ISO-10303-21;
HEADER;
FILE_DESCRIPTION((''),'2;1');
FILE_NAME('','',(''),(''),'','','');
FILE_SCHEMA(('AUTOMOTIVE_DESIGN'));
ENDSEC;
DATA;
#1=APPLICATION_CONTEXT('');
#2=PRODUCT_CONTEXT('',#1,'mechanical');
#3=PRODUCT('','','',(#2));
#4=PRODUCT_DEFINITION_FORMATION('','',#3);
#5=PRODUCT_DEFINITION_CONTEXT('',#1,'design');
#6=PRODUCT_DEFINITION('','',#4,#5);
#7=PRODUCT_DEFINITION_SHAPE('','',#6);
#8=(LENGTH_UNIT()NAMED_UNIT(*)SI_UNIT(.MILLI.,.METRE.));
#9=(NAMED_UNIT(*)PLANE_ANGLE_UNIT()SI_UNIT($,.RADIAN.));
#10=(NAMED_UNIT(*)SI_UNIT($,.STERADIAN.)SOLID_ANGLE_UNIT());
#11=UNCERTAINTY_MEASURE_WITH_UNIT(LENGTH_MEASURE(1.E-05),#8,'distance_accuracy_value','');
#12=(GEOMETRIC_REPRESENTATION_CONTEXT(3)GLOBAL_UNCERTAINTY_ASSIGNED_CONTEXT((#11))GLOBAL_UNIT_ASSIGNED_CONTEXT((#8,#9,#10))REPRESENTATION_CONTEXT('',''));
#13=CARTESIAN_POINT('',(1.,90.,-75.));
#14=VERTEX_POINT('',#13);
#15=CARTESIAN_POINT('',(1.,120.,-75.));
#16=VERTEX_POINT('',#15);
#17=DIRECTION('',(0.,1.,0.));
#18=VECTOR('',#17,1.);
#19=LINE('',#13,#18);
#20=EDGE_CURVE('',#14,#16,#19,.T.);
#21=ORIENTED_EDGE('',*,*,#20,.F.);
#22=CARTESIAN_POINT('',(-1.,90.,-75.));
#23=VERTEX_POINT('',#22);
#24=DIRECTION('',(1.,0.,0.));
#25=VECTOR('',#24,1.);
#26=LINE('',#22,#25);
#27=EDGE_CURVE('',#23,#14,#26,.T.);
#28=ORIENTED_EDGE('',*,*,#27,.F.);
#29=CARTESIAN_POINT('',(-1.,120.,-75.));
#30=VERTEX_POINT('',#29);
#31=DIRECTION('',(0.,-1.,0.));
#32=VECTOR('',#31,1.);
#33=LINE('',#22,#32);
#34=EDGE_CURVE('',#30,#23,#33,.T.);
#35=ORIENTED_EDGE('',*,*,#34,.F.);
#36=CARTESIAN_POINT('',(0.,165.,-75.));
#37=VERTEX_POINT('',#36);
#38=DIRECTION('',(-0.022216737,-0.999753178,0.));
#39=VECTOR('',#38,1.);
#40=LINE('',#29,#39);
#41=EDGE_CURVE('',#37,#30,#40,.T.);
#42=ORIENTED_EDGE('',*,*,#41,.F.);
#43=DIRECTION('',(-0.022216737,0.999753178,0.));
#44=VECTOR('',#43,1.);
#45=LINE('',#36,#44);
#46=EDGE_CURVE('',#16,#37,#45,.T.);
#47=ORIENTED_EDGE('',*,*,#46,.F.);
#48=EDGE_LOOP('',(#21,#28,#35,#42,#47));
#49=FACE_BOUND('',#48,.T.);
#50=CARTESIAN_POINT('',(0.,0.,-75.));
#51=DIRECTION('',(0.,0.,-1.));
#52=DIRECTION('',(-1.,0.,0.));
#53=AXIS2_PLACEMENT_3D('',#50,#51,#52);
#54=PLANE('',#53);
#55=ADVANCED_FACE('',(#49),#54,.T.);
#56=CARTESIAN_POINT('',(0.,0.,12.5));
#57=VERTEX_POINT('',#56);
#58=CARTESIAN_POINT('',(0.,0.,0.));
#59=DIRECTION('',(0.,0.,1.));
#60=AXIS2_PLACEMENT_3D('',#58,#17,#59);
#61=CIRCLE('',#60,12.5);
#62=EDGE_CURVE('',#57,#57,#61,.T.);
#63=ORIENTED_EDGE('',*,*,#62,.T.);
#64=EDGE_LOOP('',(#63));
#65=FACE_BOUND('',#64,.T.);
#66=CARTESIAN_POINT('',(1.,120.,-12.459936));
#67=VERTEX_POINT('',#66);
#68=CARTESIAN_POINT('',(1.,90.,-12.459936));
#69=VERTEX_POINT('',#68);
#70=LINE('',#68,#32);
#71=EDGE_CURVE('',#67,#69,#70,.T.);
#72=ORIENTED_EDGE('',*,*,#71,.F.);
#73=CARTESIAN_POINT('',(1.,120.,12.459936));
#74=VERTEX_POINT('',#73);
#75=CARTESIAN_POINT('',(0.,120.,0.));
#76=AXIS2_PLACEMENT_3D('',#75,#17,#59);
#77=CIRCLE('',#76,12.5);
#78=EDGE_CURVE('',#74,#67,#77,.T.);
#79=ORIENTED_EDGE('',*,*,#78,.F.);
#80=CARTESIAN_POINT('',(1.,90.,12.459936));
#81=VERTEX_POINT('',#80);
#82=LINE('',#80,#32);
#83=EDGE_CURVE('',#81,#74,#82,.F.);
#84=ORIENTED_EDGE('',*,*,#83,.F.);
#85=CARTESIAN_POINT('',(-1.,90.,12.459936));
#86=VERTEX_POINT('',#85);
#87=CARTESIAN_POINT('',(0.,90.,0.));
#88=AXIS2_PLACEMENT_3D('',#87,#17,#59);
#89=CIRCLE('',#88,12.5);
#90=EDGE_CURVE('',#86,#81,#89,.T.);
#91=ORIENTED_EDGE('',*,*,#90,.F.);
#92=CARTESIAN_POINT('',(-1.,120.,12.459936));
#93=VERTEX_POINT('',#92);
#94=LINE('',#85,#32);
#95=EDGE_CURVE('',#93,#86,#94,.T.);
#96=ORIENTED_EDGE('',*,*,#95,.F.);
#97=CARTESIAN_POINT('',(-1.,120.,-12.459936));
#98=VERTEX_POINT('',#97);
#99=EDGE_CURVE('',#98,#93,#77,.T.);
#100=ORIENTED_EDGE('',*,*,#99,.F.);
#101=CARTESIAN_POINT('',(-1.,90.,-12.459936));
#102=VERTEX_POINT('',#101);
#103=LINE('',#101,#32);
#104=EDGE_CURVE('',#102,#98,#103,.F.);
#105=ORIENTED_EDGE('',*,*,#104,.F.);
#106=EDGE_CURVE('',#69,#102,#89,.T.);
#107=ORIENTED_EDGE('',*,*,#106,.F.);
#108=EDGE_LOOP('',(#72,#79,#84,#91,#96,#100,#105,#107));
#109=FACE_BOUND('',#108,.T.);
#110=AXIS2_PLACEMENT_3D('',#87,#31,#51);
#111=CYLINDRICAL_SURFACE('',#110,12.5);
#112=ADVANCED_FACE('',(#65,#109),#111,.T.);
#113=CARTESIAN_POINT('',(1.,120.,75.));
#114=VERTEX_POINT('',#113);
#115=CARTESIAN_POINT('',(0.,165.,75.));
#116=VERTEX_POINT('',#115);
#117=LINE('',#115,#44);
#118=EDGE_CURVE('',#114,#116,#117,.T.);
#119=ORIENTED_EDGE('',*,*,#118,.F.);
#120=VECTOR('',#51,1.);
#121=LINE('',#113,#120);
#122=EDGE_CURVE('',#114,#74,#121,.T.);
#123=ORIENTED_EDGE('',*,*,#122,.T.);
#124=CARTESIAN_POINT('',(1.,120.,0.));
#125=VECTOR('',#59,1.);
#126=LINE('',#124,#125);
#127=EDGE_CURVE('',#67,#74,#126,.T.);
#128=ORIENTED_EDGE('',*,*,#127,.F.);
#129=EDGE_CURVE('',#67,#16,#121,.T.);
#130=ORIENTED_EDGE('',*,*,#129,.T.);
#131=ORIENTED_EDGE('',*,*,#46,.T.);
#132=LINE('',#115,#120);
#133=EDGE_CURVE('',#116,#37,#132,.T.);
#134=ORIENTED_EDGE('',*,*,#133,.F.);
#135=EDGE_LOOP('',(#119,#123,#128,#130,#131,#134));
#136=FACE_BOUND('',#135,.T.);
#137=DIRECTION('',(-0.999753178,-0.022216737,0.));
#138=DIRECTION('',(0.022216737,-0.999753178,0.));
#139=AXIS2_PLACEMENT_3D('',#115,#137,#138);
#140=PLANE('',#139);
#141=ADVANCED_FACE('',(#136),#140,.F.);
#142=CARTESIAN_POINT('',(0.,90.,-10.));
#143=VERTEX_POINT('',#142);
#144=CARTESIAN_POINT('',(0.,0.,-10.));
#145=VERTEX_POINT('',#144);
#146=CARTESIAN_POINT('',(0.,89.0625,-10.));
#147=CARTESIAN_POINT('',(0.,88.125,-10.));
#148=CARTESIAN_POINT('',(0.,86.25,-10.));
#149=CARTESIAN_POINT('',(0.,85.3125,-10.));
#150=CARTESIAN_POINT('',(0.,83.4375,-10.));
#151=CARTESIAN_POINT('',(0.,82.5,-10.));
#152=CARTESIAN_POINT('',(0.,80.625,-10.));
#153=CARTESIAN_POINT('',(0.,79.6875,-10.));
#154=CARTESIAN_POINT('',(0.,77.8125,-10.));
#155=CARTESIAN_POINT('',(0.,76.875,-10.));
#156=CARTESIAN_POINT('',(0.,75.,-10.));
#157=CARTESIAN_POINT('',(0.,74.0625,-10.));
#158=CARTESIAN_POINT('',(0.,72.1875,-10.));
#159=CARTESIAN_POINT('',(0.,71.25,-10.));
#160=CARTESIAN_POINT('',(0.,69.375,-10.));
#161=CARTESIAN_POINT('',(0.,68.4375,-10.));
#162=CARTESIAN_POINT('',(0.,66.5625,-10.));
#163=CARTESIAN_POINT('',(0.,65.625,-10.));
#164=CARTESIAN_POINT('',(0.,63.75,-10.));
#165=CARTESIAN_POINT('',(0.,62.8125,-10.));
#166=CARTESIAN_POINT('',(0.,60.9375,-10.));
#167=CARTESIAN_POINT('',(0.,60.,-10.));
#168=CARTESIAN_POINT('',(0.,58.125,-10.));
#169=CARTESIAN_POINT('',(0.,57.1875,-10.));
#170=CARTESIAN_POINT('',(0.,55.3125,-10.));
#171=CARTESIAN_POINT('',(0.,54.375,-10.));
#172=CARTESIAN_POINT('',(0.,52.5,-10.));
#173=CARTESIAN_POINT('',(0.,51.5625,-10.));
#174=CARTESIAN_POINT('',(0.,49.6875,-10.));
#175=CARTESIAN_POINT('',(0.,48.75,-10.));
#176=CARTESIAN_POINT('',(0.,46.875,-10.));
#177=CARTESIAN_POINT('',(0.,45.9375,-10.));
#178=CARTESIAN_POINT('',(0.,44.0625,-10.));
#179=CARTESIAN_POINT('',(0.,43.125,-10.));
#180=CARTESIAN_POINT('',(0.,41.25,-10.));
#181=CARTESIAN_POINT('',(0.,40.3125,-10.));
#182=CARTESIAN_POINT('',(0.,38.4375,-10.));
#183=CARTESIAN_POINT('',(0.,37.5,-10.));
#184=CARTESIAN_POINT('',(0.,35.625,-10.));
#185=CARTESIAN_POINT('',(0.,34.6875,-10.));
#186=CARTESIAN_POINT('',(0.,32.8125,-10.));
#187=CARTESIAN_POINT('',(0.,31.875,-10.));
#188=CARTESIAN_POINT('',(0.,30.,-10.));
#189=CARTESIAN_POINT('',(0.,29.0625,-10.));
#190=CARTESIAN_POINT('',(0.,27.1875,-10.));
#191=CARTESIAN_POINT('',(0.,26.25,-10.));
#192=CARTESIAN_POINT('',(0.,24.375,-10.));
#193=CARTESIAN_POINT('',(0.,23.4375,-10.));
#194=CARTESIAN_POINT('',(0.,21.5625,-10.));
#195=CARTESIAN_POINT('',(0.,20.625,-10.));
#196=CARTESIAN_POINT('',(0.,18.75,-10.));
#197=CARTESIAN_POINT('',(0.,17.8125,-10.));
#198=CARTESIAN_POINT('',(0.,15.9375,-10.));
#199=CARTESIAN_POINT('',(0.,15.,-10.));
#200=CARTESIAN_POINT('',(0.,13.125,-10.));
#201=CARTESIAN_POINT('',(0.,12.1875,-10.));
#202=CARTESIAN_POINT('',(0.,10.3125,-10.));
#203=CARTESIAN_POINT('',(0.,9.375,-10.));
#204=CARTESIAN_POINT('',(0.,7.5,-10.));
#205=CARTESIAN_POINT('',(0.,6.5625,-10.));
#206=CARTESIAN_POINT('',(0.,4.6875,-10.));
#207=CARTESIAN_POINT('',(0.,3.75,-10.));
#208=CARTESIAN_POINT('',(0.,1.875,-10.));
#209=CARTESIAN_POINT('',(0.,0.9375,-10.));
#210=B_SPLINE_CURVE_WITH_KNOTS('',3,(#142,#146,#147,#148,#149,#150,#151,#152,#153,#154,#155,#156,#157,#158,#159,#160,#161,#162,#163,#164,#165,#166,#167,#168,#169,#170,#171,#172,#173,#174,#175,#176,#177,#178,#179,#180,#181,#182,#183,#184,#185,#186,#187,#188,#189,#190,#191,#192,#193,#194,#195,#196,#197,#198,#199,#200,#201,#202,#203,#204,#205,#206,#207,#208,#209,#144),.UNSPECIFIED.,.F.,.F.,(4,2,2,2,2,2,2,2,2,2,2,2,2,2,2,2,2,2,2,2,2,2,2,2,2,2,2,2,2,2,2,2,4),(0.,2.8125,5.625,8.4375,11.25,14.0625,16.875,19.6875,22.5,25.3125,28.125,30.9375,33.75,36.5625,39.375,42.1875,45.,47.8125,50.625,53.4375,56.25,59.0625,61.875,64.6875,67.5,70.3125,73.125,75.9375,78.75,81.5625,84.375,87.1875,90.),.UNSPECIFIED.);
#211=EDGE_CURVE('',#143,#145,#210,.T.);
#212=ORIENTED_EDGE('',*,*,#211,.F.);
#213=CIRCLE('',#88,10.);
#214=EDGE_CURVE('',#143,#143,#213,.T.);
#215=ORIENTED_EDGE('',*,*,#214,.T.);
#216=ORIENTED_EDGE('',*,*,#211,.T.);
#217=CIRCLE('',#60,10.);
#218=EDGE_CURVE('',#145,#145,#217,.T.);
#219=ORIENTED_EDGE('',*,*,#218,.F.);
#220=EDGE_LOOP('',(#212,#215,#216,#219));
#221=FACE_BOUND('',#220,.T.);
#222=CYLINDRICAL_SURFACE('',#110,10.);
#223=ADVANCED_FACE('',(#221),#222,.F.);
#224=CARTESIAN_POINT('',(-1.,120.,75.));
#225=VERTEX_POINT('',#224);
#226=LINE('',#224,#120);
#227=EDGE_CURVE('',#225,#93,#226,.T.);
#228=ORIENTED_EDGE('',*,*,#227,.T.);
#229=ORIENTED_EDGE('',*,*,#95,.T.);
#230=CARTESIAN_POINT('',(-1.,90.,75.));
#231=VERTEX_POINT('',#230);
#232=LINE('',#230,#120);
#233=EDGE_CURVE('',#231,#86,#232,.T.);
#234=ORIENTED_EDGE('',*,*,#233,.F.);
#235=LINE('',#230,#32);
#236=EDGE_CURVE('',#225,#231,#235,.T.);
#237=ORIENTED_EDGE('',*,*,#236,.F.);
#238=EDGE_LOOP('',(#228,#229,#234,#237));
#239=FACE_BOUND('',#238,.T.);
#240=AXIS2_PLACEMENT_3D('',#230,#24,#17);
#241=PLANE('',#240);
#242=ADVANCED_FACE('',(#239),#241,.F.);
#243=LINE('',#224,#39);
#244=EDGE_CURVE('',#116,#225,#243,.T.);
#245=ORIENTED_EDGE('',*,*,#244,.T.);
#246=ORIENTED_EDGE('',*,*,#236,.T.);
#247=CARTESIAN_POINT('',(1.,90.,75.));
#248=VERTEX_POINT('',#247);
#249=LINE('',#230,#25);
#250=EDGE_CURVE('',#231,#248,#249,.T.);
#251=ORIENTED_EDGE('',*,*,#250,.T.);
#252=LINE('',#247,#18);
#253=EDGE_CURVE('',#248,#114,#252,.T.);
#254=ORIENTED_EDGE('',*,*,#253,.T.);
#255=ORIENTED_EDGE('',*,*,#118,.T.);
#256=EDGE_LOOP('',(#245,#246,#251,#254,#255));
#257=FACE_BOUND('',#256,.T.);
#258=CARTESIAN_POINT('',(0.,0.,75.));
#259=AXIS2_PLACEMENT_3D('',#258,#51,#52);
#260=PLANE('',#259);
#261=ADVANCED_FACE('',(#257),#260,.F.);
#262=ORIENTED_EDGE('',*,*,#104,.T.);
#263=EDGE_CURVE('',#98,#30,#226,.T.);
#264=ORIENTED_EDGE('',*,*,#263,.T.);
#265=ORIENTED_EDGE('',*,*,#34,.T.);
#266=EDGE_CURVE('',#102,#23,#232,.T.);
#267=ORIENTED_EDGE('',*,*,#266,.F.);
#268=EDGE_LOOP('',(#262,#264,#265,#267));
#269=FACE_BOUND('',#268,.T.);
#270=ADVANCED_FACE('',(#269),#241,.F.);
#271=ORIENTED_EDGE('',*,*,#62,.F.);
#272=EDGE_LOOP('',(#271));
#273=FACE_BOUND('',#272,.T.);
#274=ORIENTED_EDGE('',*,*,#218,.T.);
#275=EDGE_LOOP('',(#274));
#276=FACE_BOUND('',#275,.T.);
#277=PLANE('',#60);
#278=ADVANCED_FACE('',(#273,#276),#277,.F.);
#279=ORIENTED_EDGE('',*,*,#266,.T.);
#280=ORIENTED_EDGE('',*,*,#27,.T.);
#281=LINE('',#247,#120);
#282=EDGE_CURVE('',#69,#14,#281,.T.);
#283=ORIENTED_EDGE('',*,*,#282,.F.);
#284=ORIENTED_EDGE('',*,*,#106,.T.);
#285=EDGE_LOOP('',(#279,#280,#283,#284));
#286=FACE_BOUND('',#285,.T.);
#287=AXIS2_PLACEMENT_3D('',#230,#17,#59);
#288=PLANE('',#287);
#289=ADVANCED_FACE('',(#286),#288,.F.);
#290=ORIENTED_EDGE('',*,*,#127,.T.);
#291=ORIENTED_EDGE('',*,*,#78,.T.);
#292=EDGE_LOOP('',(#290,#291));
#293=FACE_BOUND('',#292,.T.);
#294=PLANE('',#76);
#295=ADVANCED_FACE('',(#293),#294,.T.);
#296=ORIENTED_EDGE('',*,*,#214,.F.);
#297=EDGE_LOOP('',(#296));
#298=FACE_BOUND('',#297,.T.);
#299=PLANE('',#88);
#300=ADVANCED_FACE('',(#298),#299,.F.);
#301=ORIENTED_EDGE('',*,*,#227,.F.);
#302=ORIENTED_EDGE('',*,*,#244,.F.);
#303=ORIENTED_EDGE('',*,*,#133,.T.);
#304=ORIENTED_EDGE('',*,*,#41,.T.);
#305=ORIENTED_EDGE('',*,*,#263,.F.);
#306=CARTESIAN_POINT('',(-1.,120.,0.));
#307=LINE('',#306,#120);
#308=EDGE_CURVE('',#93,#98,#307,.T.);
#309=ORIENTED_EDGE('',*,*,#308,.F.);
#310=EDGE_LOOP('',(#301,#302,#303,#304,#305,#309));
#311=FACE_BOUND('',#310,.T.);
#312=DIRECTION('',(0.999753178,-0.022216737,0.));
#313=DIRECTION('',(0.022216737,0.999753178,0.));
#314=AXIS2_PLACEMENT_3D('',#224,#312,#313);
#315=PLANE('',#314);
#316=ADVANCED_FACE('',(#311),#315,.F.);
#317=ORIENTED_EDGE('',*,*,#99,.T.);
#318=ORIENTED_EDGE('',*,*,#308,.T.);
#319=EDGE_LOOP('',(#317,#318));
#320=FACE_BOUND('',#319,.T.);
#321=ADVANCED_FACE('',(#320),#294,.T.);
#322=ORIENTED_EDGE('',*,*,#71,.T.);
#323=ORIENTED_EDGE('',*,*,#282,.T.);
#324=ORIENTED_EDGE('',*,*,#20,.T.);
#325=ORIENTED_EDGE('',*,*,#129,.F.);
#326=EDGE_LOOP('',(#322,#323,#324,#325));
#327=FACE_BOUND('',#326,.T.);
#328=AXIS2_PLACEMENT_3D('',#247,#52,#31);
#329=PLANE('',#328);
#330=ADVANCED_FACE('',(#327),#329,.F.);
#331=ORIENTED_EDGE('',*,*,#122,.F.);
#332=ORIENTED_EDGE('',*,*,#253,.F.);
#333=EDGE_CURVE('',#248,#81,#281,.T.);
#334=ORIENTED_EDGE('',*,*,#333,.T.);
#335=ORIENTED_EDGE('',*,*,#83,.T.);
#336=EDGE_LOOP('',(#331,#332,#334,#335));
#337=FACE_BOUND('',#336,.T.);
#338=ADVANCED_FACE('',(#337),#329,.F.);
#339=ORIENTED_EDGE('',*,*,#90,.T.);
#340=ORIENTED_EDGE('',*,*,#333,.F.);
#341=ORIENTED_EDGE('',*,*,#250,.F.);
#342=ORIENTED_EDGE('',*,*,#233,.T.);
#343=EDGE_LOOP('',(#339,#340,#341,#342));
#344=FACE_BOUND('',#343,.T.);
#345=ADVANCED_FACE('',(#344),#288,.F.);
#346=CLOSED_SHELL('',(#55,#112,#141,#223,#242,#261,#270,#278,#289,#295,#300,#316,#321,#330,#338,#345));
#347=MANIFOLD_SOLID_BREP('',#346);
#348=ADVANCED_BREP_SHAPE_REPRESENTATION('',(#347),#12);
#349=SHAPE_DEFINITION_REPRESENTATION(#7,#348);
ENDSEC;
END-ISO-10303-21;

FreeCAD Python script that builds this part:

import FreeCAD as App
import Part
import Sketcher
Q = App.Units.Quantity

doc = App.newDocument("Part")
params = doc.addObject("Spreadsheet::Sheet", "Params")
for row, (alias, value) in enumerate([
    ("sketch1_diameter", "25 mm"),
    ("sketch1_diameter2", "20 mm"),
    ("pad1_length", "90 mm"),
    ("sketch2_diameter", "25 mm"),
    ("pad2_length", "30 mm"),
    ("sketch3_width", "2 mm"),
    ("sketch3_height", "30 mm"),
    ("pad3_length", "150 mm"),
], start=1):
    params.set(f"A{row}", alias)
    params.set(f"B{row}", "=" + value)
    params.setAlias(f"B{row}", alias)

body = doc.addObject("PartDesign::Body", "Body")

# Sketch on XZ plane
sketch1 = body.newObject("Sketcher::SketchObject", "Sketch")
sketch1.AttachmentSupport = (doc.getObject("XZ_Plane"), [""])
sketch1.MapMode = "FlatFace"
sketch1.addGeometry([
    Part.Circle(App.Vector(0, 0, 0), App.Vector(0, 0, 1), 12.5),
    Part.Circle(App.Vector(0, 0, 0), App.Vector(0, 0, 1), 10),
], False)
sketch1.addConstraint([
    Sketcher.Constraint("Coincident", 0, 3, -1, 1),
    Sketcher.Constraint("Coincident", 1, 3, -1, 1),
    Sketcher.Constraint("Diameter", 0, Q("25 mm")),
    Sketcher.Constraint("Diameter", 1, Q("20 mm")),
])
sketch1.setExpression("Constraints[2]", "Params.sketch1_diameter")
sketch1.setExpression("Constraints[3]", "Params.sketch1_diameter2")
pad1 = body.newObject("PartDesign::Pad", "Pad")
pad1.Profile = sketch1
pad1.setExpression("Length", "Params.pad1_length")
pad1.Reversed = True

# Sketch on XZ plane
sketch2 = body.newObject("Sketcher::SketchObject", "Sketch001")
sketch2.AttachmentSupport = (doc.getObject("XZ_Plane"), [""])
sketch2.MapMode = "FlatFace"
sketch2.AttachmentOffset = App.Placement(App.Vector(0, 0, -90), App.Rotation())
sketch2.addGeometry(Part.Circle(App.Vector(0, 0, 0), App.Vector(0, 0, 1), 12.5), False)
sketch2.addConstraint([
    Sketcher.Constraint("Coincident", 0, 3, -1, 1),
    Sketcher.Constraint("Diameter", 0, Q("25 mm")),
])
sketch2.setExpression("Constraints[1]", "Params.sketch2_diameter")
pad2 = body.newObject("PartDesign::Pad", "Pad001")
pad2.Profile = sketch2
pad2.setExpression("Length", "Params.pad2_length")
pad2.Reversed = True

# Sketch on XY plane
sketch3 = body.newObject("Sketcher::SketchObject", "Sketch002")
sketch3.AttachmentSupport = (doc.getObject("XY_Plane"), [""])
sketch3.MapMode = "FlatFace"
sketch3.addGeometry([
    Part.LineSegment(App.Vector(-1, 90, 0), App.Vector(1, 90, 0)),  # 0
    Part.LineSegment(App.Vector(1, 90, 0), App.Vector(1, 120, 0)),  # 1
    Part.LineSegment(App.Vector(1, 120, 0), App.Vector(0, 165, 0)),  # 2
    Part.LineSegment(App.Vector(0, 165, 0), App.Vector(-1, 120, 0)),  # 3
    Part.LineSegment(App.Vector(-1, 120, 0), App.Vector(-1, 90, 0)),  # 4
], False)
sketch3.addConstraint([
    Sketcher.Constraint("Coincident", 0, 2, 1, 1),
    Sketcher.Constraint("Coincident", 1, 2, 2, 1),
    Sketcher.Constraint("Coincident", 2, 2, 3, 1),
    Sketcher.Constraint("Coincident", 3, 2, 4, 1),
    Sketcher.Constraint("Coincident", 4, 2, 0, 1),
    Sketcher.Constraint("Horizontal", 0),
    Sketcher.Constraint("Vertical", 1),
    Sketcher.Constraint("Vertical", 4),
    Sketcher.Constraint("Symmetric", 1, 2, 3, 2, -2),
    Sketcher.Constraint("PointOnObject", 2, 2, -2),
    Sketcher.Constraint("DistanceX", 0, 1, 0, 2, Q("2 mm")),
    Sketcher.Constraint("DistanceY", 1, 1, 1, 2, Q("30 mm")),
    Sketcher.Constraint("DistanceY", -1, 1, 0, 2, Q("90 mm")),
    Sketcher.Constraint("DistanceY", -1, 1, 2, 2, Q("165 mm")),
])
sketch3.setExpression("Constraints[10]", "Params.sketch3_width")
sketch3.setExpression("Constraints[11]", "Params.sketch3_height")
pad3 = body.newObject("PartDesign::Pad", "Pad002")
pad3.Profile = sketch3
pad3.setExpression("Length", "Params.pad3_length")
pad3.Midplane = True

doc.recompute()
